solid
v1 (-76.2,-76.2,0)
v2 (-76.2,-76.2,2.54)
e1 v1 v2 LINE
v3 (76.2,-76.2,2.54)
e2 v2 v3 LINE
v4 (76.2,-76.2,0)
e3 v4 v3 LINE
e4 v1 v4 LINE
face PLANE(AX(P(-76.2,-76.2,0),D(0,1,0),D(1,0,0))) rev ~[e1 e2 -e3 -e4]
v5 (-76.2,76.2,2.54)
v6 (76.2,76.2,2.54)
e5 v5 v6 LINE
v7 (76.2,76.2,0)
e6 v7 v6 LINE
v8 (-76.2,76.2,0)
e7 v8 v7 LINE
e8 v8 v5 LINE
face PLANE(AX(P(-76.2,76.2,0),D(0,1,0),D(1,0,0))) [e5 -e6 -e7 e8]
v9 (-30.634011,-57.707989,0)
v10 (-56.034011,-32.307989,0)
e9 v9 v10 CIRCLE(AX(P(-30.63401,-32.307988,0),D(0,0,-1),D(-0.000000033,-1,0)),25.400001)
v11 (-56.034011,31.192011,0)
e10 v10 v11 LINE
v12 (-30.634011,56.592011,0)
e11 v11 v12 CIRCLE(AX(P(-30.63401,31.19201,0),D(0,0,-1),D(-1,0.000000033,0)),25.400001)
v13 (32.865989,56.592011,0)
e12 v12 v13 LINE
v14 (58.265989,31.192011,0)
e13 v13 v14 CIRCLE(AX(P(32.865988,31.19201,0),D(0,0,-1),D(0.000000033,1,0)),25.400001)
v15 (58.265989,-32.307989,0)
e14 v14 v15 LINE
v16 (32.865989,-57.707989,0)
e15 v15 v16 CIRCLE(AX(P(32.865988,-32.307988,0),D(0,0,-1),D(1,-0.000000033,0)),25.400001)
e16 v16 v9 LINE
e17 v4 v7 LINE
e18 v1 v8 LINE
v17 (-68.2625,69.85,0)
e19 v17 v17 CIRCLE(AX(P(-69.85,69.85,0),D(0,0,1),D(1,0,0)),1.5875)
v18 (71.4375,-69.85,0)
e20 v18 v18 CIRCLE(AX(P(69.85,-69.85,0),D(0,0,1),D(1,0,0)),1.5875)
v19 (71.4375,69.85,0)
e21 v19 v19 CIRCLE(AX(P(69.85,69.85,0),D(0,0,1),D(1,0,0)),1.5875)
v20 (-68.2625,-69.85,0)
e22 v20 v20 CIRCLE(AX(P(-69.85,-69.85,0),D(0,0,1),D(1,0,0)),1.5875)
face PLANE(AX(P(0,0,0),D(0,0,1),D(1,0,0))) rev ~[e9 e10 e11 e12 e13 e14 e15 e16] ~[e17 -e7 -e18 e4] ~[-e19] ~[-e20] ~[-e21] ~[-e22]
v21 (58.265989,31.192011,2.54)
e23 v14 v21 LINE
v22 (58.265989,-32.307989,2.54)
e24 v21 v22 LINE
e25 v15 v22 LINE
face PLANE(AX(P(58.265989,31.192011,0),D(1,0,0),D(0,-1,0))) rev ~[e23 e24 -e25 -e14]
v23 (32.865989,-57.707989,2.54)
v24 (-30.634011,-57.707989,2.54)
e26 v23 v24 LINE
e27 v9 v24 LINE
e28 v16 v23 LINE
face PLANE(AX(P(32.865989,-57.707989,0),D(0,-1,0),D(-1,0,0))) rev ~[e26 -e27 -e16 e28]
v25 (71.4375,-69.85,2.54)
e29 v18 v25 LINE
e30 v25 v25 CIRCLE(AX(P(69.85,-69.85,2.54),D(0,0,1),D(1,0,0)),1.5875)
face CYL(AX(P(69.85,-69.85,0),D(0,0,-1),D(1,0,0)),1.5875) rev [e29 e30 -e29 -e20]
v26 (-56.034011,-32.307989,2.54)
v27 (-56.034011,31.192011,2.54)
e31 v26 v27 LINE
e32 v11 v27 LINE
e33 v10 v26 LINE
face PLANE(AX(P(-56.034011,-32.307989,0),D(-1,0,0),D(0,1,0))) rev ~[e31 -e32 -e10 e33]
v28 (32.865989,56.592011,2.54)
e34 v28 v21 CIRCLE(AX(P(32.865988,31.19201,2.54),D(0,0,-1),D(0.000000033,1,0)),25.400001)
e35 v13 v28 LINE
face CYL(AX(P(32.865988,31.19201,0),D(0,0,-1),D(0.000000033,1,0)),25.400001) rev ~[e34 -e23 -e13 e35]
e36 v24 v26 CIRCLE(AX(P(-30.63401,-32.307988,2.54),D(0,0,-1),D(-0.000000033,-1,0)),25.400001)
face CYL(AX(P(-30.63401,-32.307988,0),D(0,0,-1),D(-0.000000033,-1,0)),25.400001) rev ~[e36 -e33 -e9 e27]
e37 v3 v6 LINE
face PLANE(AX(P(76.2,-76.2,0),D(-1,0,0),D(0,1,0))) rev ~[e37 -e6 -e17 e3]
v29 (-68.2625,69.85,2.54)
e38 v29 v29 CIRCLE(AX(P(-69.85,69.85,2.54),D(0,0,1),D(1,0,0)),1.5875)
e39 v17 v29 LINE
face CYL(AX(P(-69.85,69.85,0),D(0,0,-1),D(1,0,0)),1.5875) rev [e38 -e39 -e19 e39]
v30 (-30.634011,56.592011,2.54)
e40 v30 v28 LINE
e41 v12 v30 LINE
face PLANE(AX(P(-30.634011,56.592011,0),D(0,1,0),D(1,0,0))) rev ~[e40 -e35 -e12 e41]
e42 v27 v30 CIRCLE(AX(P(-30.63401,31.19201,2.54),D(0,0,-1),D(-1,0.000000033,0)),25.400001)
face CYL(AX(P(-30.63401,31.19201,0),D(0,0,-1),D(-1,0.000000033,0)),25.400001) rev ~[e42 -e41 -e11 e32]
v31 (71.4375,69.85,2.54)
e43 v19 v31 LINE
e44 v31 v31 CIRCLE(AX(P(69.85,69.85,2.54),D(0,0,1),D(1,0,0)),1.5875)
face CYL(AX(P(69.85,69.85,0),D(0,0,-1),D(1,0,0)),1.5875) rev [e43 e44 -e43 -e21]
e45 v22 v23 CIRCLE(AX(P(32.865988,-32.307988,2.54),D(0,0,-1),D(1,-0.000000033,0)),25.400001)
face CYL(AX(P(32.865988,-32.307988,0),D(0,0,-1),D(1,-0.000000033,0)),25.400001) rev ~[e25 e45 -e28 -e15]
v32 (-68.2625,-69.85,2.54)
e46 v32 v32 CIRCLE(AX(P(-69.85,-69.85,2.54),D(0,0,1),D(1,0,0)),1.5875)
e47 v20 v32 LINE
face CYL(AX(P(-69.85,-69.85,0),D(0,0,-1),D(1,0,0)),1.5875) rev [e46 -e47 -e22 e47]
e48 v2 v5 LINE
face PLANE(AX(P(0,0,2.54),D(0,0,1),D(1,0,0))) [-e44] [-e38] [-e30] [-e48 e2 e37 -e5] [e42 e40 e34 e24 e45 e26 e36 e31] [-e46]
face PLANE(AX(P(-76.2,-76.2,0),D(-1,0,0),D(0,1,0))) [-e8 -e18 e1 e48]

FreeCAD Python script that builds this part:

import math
import FreeCAD as App
import Part
import Sketcher

V = App.Vector
Q = App.Units.Quantity


def add_polygon(sketch, points):
    """Adds a closed chain of lines whose ends are joined by coincident constraints."""
    first, n = sketch.GeometryCount, len(points)
    for a, b in zip(points, points[1:] + points[:1]):
        sketch.addGeometry(Part.LineSegment(App.Vector(*a, 0), App.Vector(*b, 0)), False)
    for i in range(n):
        sketch.addConstraint(Sketcher.Constraint("Coincident", first + i, 2, first + (i + 1) % n, 1))

doc = App.newDocument("Part")
body = doc.addObject("PartDesign::Body", "Body")

# Sketch on XY plane
sketch1 = body.newObject("Sketcher::SketchObject", "Sketch")
sketch1.AttachmentSupport = (doc.getObject("XY_Plane"), [""])
sketch1.MapMode = "FlatFace"
add_polygon(sketch1, [(-76.2, 76.2), (-76.2, -76.2), (76.2, -76.2), (76.2, 76.2)])  # lines 0-3
sketch1.addGeometry(Part.Circle(V(-69.8, -69.8, 0), V(0, 0, 1), 1.6), False)  # 4
sketch1.addGeometry(Part.Circle(V(69.8, -69.8, 0), V(0, 0, 1), 1.6), False)  # 5
sketch1.addGeometry(Part.LineSegment(V(-56, -32.3, 0), V(-56, 31.2, 0)), False)  # 6
sketch1.addGeometry(Part.ArcOfCircle(Part.Circle(V(-30.6, 31.2, 0), V(0, 0, 1), 25.4), math.radians(90), math.radians(180)), False)  # 7
sketch1.addGeometry(Part.LineSegment(V(-30.6, 56.6, 0), V(32.9, 56.6, 0)), False)  # 8
sketch1.addGeometry(Part.ArcOfCircle(Part.Circle(V(32.9, 31.2, 0), V(0, 0, 1), 25.4), math.radians(0), math.radians(90)), False)  # 9
sketch1.addGeometry(Part.LineSegment(V(58.3, 31.2, 0), V(58.3, -32.3, 0)), False)  # 10
sketch1.addGeometry(Part.ArcOfCircle(Part.Circle(V(32.9, -32.3, 0), V(0, 0, 1), 25.4), math.radians(-90), math.radians(0)), False)  # 11
sketch1.addGeometry(Part.LineSegment(V(32.9, -57.7, 0), V(-30.6, -57.7, 0)), False)  # 12
sketch1.addGeometry(Part.ArcOfCircle(Part.Circle(V(-30.6, -32.3, 0), V(0, 0, 1), 25.4), math.radians(-180), math.radians(-90)), False)  # 13
sketch1.addGeometry(Part.Circle(V(-69.8, 69.8, 0), V(0, 0, 1), 1.6), False)  # 14
sketch1.addGeometry(Part.Circle(V(69.8, 69.8, 0), V(0, 0, 1), 1.6), False)  # 15
sketch1.addConstraint([
    Sketcher.Constraint("Tangent", 6, 2, 7, 2),
    Sketcher.Constraint("Tangent", 7, 1, 8, 1),
    Sketcher.Constraint("Tangent", 8, 2, 9, 2),
    Sketcher.Constraint("Tangent", 9, 1, 10, 1),
    Sketcher.Constraint("Tangent", 10, 2, 11, 2),
    Sketcher.Constraint("Tangent", 11, 1, 12, 1),
    Sketcher.Constraint("Tangent", 12, 2, 13, 2),
    Sketcher.Constraint("Tangent", 13, 1, 6, 1),
    Sketcher.Constraint("Vertical", 0),
    Sketcher.Constraint("Horizontal", 1),
    Sketcher.Constraint("Vertical", 2),
    Sketcher.Constraint("Horizontal", 3),
    Sketcher.Constraint("Vertical", 6),
    Sketcher.Constraint("Horizontal", 8),
    Sketcher.Constraint("Vertical", 10),
    Sketcher.Constraint("Horizontal", 12),
    Sketcher.Constraint("Equal", 4, 5),
    Sketcher.Constraint("Equal", 7, 9),
    Sketcher.Constraint("Equal", 9, 11),
    Sketcher.Constraint("Equal", 11, 13),
    Sketcher.Constraint("Equal", 5, 14),
    Sketcher.Constraint("Equal", 14, 15),
    Sketcher.Constraint("Symmetric", 5, 3, 14, 3, -1, 1),
    Sketcher.Constraint("Symmetric", 4, 3, 15, 3, -1, 1),
    Sketcher.Constraint("Symmetric", 0, 2, 2, 2, -1, 1),
    Sketcher.Constraint("Symmetric", 4, 3, 5, 3, -2),
    Sketcher.Constraint("Equal", 3, 0),
    Sketcher.Constraint("Equal", 12, 6),
    Sketcher.Constraint("Radius", 7, Q("1 in")),
    Sketcher.Constraint("DistanceX", 1, 1, 1, 2, Q("6 in")),
    Sketcher.Constraint("Diameter", 4, Q("0.125 in")),
    Sketcher.Constraint("DistanceX", 8, 1, 8, 2, Q("2.5 in")),
    Sketcher.Constraint("DistanceX", 4, 3, 5, 3, Q("5.5 in")),
    Sketcher.Constraint("DistanceY", 4, 3, 14, 3, Q("5.5 in")),
    Sketcher.Constraint("DistanceX", 7, 3, -1, 1, 30.63401),
    Sketcher.Constraint("DistanceY", -1, 1, 7, 3, 31.19201),
])
pad1 = body.newObject("PartDesign::Pad", "Pad")
pad1.Profile = sketch1
pad1.Length = Q("0.1 in")

doc.recompute()
